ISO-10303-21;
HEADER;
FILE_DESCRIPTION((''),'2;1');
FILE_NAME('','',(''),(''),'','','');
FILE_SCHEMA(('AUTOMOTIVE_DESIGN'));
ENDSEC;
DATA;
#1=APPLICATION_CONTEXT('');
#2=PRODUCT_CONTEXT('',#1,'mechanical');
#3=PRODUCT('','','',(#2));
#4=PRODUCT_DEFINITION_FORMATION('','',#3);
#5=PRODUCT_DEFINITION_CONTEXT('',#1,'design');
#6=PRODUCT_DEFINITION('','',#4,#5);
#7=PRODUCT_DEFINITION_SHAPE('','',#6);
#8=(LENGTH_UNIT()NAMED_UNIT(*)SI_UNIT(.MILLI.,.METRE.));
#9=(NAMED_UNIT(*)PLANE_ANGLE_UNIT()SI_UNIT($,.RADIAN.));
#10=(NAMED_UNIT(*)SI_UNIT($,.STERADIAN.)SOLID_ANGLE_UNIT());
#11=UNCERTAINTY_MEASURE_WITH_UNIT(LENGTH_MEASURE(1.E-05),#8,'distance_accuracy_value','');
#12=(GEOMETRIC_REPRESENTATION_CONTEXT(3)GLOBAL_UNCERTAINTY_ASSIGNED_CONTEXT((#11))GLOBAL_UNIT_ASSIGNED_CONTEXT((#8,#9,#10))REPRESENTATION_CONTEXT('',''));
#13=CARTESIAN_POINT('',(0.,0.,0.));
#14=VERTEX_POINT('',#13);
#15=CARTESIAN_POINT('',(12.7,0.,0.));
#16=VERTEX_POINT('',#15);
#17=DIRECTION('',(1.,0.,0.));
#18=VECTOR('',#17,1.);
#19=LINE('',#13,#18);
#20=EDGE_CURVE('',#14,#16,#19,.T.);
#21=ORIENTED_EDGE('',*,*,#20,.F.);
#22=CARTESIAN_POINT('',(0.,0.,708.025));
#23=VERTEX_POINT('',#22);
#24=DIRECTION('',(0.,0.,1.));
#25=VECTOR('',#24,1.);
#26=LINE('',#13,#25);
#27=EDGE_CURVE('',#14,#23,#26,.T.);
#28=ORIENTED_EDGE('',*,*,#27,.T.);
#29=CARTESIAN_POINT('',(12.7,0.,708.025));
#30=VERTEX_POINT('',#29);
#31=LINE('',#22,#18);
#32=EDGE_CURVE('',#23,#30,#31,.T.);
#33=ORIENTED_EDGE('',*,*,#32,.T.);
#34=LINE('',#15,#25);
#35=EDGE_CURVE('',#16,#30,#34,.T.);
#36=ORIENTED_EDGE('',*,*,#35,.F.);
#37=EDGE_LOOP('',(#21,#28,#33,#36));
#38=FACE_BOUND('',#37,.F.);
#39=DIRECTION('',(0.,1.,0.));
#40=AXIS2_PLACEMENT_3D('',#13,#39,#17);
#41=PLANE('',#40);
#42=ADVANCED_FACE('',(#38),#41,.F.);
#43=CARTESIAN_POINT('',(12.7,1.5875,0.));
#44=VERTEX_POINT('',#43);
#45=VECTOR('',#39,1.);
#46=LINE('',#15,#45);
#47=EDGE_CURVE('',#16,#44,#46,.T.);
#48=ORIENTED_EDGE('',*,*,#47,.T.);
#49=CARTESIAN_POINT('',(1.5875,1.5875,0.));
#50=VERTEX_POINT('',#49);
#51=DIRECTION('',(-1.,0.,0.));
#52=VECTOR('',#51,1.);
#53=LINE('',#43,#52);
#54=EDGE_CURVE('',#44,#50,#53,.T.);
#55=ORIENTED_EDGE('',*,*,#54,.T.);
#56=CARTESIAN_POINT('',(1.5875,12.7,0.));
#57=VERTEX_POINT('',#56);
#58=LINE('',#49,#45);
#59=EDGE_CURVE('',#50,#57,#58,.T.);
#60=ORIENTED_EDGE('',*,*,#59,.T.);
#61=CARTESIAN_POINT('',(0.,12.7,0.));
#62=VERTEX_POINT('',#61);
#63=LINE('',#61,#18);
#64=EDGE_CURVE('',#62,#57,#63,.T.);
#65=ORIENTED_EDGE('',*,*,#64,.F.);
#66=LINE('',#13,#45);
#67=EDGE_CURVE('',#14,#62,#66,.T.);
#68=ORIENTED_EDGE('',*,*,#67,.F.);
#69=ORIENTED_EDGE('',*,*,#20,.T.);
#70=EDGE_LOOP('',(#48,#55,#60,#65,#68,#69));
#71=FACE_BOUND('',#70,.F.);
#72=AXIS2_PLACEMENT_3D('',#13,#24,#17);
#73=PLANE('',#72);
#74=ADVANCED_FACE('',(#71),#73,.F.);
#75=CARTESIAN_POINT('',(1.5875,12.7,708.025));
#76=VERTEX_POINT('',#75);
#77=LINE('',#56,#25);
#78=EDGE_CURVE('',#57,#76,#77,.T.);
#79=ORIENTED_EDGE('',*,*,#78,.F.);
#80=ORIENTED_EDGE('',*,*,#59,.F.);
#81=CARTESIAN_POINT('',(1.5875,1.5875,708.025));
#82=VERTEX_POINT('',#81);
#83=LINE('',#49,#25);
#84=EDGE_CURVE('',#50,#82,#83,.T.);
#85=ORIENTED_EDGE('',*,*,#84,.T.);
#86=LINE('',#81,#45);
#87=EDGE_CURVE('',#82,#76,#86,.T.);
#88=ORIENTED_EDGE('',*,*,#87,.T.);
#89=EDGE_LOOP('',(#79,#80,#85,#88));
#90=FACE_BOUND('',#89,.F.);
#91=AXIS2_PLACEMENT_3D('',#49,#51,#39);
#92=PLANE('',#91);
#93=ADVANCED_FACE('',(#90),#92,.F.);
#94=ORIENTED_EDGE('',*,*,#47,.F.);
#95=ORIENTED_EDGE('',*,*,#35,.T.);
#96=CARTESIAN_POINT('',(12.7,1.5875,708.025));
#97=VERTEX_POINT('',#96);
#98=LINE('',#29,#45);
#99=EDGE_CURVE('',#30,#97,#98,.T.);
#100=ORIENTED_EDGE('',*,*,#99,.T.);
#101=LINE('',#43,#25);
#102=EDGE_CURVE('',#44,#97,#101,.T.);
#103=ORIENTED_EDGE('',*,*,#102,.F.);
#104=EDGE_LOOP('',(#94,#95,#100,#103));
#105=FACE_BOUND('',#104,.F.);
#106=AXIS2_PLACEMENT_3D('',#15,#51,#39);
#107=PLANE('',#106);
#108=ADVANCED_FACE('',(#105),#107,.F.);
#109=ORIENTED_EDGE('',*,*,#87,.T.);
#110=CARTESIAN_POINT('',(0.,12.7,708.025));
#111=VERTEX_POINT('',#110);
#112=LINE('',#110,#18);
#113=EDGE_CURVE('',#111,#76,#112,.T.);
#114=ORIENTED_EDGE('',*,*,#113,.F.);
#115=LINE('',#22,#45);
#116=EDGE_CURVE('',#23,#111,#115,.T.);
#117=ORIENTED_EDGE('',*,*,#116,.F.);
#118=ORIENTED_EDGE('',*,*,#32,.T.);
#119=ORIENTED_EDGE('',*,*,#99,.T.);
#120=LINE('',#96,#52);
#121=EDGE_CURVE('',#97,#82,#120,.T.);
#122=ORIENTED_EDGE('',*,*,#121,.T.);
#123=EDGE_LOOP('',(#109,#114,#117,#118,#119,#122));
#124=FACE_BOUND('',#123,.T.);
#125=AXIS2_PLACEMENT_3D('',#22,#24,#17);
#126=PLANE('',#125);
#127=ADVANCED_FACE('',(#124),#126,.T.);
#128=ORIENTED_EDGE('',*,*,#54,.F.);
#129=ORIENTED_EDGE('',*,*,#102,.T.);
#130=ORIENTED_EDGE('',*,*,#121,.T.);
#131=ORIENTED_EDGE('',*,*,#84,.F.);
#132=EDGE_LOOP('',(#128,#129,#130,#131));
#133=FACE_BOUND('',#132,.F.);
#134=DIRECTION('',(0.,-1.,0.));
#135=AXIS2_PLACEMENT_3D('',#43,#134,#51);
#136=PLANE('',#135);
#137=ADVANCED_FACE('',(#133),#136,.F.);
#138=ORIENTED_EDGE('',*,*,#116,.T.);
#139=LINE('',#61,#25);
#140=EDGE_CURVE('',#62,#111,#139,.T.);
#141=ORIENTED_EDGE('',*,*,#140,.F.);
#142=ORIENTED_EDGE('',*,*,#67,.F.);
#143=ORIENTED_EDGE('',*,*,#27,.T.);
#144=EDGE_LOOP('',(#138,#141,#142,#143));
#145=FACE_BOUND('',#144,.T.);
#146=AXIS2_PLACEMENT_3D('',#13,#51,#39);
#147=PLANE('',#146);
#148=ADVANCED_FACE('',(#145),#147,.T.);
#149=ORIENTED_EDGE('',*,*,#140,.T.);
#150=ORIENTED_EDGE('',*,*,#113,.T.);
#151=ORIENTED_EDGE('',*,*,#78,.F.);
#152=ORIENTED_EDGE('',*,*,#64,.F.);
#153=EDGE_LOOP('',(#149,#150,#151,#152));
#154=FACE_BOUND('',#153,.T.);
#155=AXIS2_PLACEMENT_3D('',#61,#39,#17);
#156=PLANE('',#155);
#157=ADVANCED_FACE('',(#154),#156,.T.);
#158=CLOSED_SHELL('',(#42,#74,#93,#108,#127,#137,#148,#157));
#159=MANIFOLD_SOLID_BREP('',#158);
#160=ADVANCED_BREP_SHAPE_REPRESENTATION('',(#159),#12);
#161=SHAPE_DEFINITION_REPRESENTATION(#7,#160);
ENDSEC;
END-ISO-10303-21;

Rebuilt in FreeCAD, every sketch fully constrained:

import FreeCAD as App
import Part
import Sketcher

V = App.Vector
Q = App.Units.Quantity

doc = App.newDocument("Part")
body = doc.addObject("PartDesign::Body", "Body")

sketch1 = doc.addObject("Sketcher::SketchObject", "Sketch")
body.addObject(sketch1)
sketch1.AttachmentSupport = (doc.XY_Plane, [""])
sketch1.MapMode = "FlatFace"
sketch1.addGeometry(Part.LineSegment(V(0, 12.7, 0), V(0, 0, 0)), False)
sketch1.addGeometry(Part.LineSegment(V(0, 0, 0), V(12.7, 0, 0)), False)
sketch1.addGeometry(Part.LineSegment(V(12.7, 0, 0), V(12.7, 1.6, 0)), False)
sketch1.addGeometry(Part.LineSegment(V(12.7, 1.6, 0), V(1.6, 1.6, 0)), False)
sketch1.addGeometry(Part.LineSegment(V(1.6, 1.6, 0), V(1.6, 12.7, 0)), False)
sketch1.addGeometry(Part.LineSegment(V(1.6, 12.7, 0), V(0, 12.7, 0)), False)
sketch1.addConstraint(Sketcher.Constraint("Coincident", 0, 2, 1, 1))
sketch1.addConstraint(Sketcher.Constraint("Coincident", 1, 2, 2, 1))
sketch1.addConstraint(Sketcher.Constraint("Coincident", 2, 2, 3, 1))
sketch1.addConstraint(Sketcher.Constraint("Coincident", 3, 2, 4, 1))
sketch1.addConstraint(Sketcher.Constraint("Coincident", 4, 2, 5, 1))
sketch1.addConstraint(Sketcher.Constraint("Coincident", 5, 2, 0, 1))
sketch1.addConstraint(Sketcher.Constraint("Vertical", 0))
sketch1.addConstraint(Sketcher.Constraint("Horizontal", 1))
sketch1.addConstraint(Sketcher.Constraint("Vertical", 2))
sketch1.addConstraint(Sketcher.Constraint("Horizontal", 3))
sketch1.addConstraint(Sketcher.Constraint("Vertical", 4))
sketch1.addConstraint(Sketcher.Constraint("Horizontal", 5))
sketch1.addConstraint(Sketcher.Constraint("Coincident", 0, 2, -1, 1))
sketch1.addConstraint(Sketcher.Constraint("Equal", 1, 0))
sketch1.addConstraint(Sketcher.Constraint("Equal", 5, 2))
sketch1.addConstraint(Sketcher.Constraint("DistanceX", 1, 1, 1, 2, Q("0.5 in")))
sketch1.addConstraint(Sketcher.Constraint("DistanceX", 5, 2, 5, 1, Q("0.0625 in")))
pad1 = doc.addObject("PartDesign::Pad", "Pad")
body.addObject(pad1)
pad1.Profile = sketch1
pad1.Length = Q("27.875 in")

doc.recompute()
